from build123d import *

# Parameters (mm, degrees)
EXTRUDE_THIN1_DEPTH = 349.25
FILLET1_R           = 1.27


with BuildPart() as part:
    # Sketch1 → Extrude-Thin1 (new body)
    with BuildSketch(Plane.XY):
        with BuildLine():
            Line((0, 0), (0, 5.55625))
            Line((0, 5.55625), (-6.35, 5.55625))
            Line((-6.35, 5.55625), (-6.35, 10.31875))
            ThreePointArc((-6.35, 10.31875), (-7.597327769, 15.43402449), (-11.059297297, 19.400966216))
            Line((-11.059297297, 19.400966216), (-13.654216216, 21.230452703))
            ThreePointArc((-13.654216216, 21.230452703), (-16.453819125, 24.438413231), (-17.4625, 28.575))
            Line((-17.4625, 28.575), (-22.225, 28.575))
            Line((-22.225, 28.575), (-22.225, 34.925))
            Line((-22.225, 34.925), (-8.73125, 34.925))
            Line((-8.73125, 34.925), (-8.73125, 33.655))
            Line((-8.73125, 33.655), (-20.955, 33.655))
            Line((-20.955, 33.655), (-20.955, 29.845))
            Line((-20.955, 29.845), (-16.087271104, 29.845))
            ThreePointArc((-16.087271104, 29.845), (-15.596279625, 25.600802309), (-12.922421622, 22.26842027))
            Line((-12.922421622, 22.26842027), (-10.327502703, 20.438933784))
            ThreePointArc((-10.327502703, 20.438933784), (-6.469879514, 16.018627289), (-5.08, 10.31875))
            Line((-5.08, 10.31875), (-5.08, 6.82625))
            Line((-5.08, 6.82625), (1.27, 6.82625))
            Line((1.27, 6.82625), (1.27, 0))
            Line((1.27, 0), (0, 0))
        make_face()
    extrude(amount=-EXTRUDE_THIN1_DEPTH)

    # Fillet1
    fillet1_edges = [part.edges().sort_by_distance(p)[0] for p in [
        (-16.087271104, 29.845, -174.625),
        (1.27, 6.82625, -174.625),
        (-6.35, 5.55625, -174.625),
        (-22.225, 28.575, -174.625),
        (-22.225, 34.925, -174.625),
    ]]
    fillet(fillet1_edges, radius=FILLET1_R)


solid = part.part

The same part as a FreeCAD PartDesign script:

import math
import FreeCAD as App
import Part
import Sketcher
from FreeCAD import Vector
Q = App.Units.Quantity


def edges_at(feature, points):
    """Names of the edges that pass closest to the given points."""
    edges = feature.Shape.Edges
    near = lambda p: min(range(len(edges)), key=lambda i: edges[i].distToShape(Part.Vertex(*p))[0])
    return sorted({f"Edge{near(p) + 1}" for p in points})

doc = App.newDocument("Part")
body = doc.addObject("PartDesign::Body", "Body")

sketch1 = doc.addObject("Sketcher::SketchObject", "Sketch")
body.addObject(sketch1)
sketch1.AttachmentSupport = (doc.XY_Plane, [""])
sketch1.MapMode = "FlatFace"
sketch1.addGeometry([
    Part.LineSegment(Vector(0, 5.6, 0), Vector(0, 0, 0)),
    Part.LineSegment(Vector(0, 0, 0), Vector(1.3, 0, 0)),
    Part.LineSegment(Vector(1.3, 0, 0), Vector(1.3, 6.8, 0)),
    Part.LineSegment(Vector(1.3, 6.8, 0), Vector(-5.1, 6.8, 0)),
    Part.LineSegment(Vector(-5.1, 6.8, 0), Vector(-5.1, 10.3, 0)),
    Part.ArcOfCircle(Part.Circle(Vector(-17.5, 10.3, 0), Vector(0, 0, 1), 12.4), math.radians(0), math.radians(55)),
    Part.LineSegment(Vector(-10.3, 20.4, 0), Vector(-12.9, 22.3, 0)),
    Part.ArcOfCircle(Part.Circle(Vector(-8.5, 28.6, 0), Vector(0, 0, 1), 7.7), math.radians(171), math.radians(235)),
    Part.LineSegment(Vector(-16.1, 29.8, 0), Vector(-21, 29.8, 0)),
    Part.LineSegment(Vector(-21, 29.8, 0), Vector(-21, 33.7, 0)),
    Part.LineSegment(Vector(-21, 33.7, 0), Vector(-8.7, 33.7, 0)),
    Part.LineSegment(Vector(-8.7, 33.7, 0), Vector(-8.7, 34.9, 0)),
    Part.LineSegment(Vector(-8.7, 34.9, 0), Vector(-22.2, 34.9, 0)),
    Part.LineSegment(Vector(-22.2, 34.9, 0), Vector(-22.2, 28.6, 0)),
    Part.LineSegment(Vector(-22.2, 28.6, 0), Vector(-17.5, 28.6, 0)),
    Part.ArcOfCircle(Part.Circle(Vector(-8.5, 28.6, 0), Vector(0, 0, 1), 9), math.radians(180), math.radians(235)),
    Part.LineSegment(Vector(-13.7, 21.2, 0), Vector(-11.1, 19.4, 0)),
    Part.ArcOfCircle(Part.Circle(Vector(-17.5, 10.3, 0), Vector(0, 0, 1), 11.1), math.radians(0), math.radians(55)),
    Part.LineSegment(Vector(-6.3, 10.3, 0), Vector(-6.3, 5.6, 0)),
    Part.LineSegment(Vector(-6.3, 5.6, 0), Vector(0, 5.6, 0)),
], False)
sketch1.addConstraint([
    Sketcher.Constraint("Coincident", 0, 2, 1, 1),
    Sketcher.Constraint("Coincident", 1, 2, 2, 1),
    Sketcher.Constraint("Coincident", 2, 2, 3, 1),
    Sketcher.Constraint("Coincident", 3, 2, 4, 1),
    Sketcher.Constraint("Tangent", 4, 2, 5, 1),
    Sketcher.Constraint("Tangent", 5, 2, 6, 1),
    Sketcher.Constraint("Tangent", 6, 2, 7, 2),
    Sketcher.Constraint("Coincident", 7, 1, 8, 1),
    Sketcher.Constraint("Coincident", 8, 2, 9, 1),
    Sketcher.Constraint("Coincident", 9, 2, 10, 1),
    Sketcher.Constraint("Coincident", 10, 2, 11, 1),
    Sketcher.Constraint("Coincident", 11, 2, 12, 1),
    Sketcher.Constraint("Coincident", 12, 2, 13, 1),
    Sketcher.Constraint("Coincident", 13, 2, 14, 1),
    Sketcher.Constraint("Coincident", 14, 2, 15, 1),
    Sketcher.Constraint("Tangent", 15, 2, 16, 1),
    Sketcher.Constraint("Tangent", 16, 2, 17, 2),
    Sketcher.Constraint("Tangent", 17, 1, 18, 1),
    Sketcher.Constraint("Coincident", 18, 2, 19, 1),
    Sketcher.Constraint("Coincident", 19, 2, 0, 1),
    Sketcher.Constraint("Vertical", 0),
    Sketcher.Constraint("Horizontal", 1),
    Sketcher.Constraint("Vertical", 2),
    Sketcher.Constraint("Horizontal", 3),
    Sketcher.Constraint("Vertical", 4),
    Sketcher.Constraint("Horizontal", 8),
    Sketcher.Constraint("Vertical", 9),
    Sketcher.Constraint("Horizontal", 10),
    Sketcher.Constraint("Vertical", 11),
    Sketcher.Constraint("Horizontal", 12),
    Sketcher.Constraint("Vertical", 13),
    Sketcher.Constraint("Horizontal", 14),
    Sketcher.Constraint("Vertical", 18),
    Sketcher.Constraint("Horizontal", 19),
    Sketcher.Constraint("Coincident", 0, 2, -1, 1),
    Sketcher.Constraint("Coincident", 15, 3, 7, 3),
    Sketcher.Constraint("Coincident", 17, 3, 5, 3),
    Sketcher.Constraint("Parallel", 6, 16),
    Sketcher.Constraint("Horizontal", 15, 3, 13, 2),
    Sketcher.Constraint("Vertical", 17, 3, 14, 2),
    Sketcher.Constraint("Equal", 3, 19),
    Sketcher.Constraint("Equal", 1, 11),
    Sketcher.Constraint("Equal", 19, 13),
    Sketcher.Constraint("Equal", 14, 18),
    Sketcher.Constraint("Radius", 17, Q("0.4375 in")),
    Sketcher.Constraint("DistanceX", 1, 1, 1, 2, Q("0.05 in")),
    Sketcher.Constraint("DistanceX", 3, 2, 3, 1, Q("0.25 in")),
    Sketcher.Constraint("DistanceY", 9, 1, 9, 2, Q("0.15 in")),
    Sketcher.Constraint("DistanceX", 12, 2, 12, 1, Q("0.53125 in")),
    Sketcher.Constraint("DistanceX", 14, 1, 14, 2, Q("0.1875 in")),
    Sketcher.Constraint("DistanceY", 0, 2, 0, 1, Q("0.21875 in")),
    Sketcher.Constraint("DistanceX", 12, 2, 9, 2, Q("0.05 in")),
    Sketcher.Constraint("DistanceY", 18, 2, 3, 2, Q("0.05 in")),
    Sketcher.Constraint("Distance", 6, Q("0.125 in")),
    Sketcher.Constraint("DistanceY", -1, 1, 7, 3, Q("1.125 in")),
])
pad1 = doc.addObject("PartDesign::Pad", "Pad")
body.addObject(pad1)
pad1.Profile = sketch1
pad1.Length = Q("13.75 in")
pad1.Reversed = True
doc.recompute()

fillet = doc.addObject("PartDesign::Fillet", "Fillet")
body.addObject(fillet)
fillet.Base = (pad1, edges_at(pad1, [
    (-16.087, 29.845, -174.625),
    (1.27, 6.826, -174.625),
    (-6.35, 5.556, -174.625),
    (-22.225, 28.575, -174.625),
    (-22.225, 34.925, -174.625),
]))
fillet.Radius = Q("0.05 in")

doc.recompute()
